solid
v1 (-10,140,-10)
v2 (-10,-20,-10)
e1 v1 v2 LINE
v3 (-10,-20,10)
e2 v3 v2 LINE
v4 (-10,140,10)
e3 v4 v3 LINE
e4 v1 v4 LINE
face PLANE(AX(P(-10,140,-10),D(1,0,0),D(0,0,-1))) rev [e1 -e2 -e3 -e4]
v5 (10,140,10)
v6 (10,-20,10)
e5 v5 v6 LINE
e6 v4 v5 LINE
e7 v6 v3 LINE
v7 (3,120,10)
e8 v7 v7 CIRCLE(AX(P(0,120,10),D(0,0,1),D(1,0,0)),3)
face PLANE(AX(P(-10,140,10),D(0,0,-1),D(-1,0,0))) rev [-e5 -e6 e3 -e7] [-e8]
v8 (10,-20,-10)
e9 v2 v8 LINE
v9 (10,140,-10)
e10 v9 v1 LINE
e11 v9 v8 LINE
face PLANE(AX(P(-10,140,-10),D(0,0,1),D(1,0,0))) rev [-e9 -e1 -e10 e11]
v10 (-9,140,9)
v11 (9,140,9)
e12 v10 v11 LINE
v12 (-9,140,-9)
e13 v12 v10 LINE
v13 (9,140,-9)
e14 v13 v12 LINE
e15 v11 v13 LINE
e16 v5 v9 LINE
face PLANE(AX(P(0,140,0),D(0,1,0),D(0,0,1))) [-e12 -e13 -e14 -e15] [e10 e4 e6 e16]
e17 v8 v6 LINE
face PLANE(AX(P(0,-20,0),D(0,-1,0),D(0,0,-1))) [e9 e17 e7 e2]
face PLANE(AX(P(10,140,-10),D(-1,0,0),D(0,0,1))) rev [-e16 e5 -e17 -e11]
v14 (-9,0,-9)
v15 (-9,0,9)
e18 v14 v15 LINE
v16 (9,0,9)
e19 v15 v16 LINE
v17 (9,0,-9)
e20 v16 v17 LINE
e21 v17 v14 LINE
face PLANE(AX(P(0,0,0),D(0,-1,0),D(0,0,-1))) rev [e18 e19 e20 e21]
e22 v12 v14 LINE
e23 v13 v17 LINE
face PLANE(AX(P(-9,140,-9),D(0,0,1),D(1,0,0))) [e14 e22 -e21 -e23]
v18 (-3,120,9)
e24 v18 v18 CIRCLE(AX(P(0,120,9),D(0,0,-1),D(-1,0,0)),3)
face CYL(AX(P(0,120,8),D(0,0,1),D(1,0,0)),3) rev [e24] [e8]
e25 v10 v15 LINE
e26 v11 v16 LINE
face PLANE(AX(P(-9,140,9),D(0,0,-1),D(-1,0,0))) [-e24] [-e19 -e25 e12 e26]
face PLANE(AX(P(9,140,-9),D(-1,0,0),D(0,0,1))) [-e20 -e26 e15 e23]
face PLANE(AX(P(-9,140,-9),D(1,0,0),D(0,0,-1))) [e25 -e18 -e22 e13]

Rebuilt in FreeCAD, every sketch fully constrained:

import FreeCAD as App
import Part
import Sketcher
from FreeCAD import Vector


def add_polygon(sketch, points):
    """Adds a closed chain of lines whose ends are joined by coincident constraints."""
    first, n = sketch.GeometryCount, len(points)
    for a, b in zip(points, points[1:] + points[:1]):
        sketch.addGeometry(Part.LineSegment(App.Vector(*a, 0), App.Vector(*b, 0)), False)
    for i in range(n):
        sketch.addConstraint(Sketcher.Constraint("Coincident", first + i, 2, first + (i + 1) % n, 1))

doc = App.newDocument("Part")
body = doc.addObject("PartDesign::Body", "Body")

# Sketch on XZ plane
sketch1 = body.newObject("Sketcher::SketchObject", "Sketch")
sketch1.AttachmentSupport = (doc.getObject("XZ_Plane"), [""])
sketch1.MapMode = "FlatFace"
add_polygon(sketch1, [(-10, -10), (-10, 10), (10, 10), (10, -10)])  # lines 0-3
add_polygon(sketch1, [(9, 9), (-9, 9), (-9, -9), (9, -9)])  # lines 4-7
sketch1.addConstraint([
    Sketcher.Constraint("Vertical", 0),
    Sketcher.Constraint("Horizontal", 1),
    Sketcher.Constraint("Vertical", 2),
    Sketcher.Constraint("Horizontal", 3),
    Sketcher.Constraint("Horizontal", 4),
    Sketcher.Constraint("Vertical", 5),
    Sketcher.Constraint("Horizontal", 6),
    Sketcher.Constraint("Vertical", 7),
    Sketcher.Constraint("Symmetric", 0, 2, 2, 2, -1, 1),
    Sketcher.Constraint("Symmetric", 4, 2, 6, 2, -1, 1),
    Sketcher.Constraint("Equal", 3, 0),
    Sketcher.Constraint("Equal", 6, 5),
    Sketcher.Constraint("DistanceX", 1, 1, 1, 2, 20.0),
    Sketcher.Constraint("DistanceX", 4, 2, 4, 1, 18.0),
])
pad1 = body.newObject("PartDesign::Pad", "Pad")
pad1.Profile = sketch1
pad1.Length = 140
pad1.Reversed = True

# Sketch on XZ plane
sketch2 = body.newObject("Sketcher::SketchObject", "Sketch001")
sketch2.AttachmentSupport = (doc.getObject("XZ_Plane"), [""])
sketch2.MapMode = "FlatFace"
add_polygon(sketch2, [(-10, 10), (-10, -10), (10, -10), (10, 10)])  # lines 0-3
sketch2.addConstraint([
    Sketcher.Constraint("Vertical", 0),
    Sketcher.Constraint("Horizontal", 1),
    Sketcher.Constraint("Vertical", 2),
    Sketcher.Constraint("Horizontal", 3),
    Sketcher.Constraint("Symmetric", 0, 2, 2, 2, -1, 1),
    Sketcher.Constraint("Equal", 3, 0),
    Sketcher.Constraint("DistanceX", 1, 1, 1, 2, 20.0),
])
pad2 = body.newObject("PartDesign::Pad", "Pad001")
pad2.Profile = sketch2
pad2.Length = 20

# Sketch on XY plane
sketch3 = body.newObject("Sketcher::SketchObject", "Sketch002")
sketch3.AttachmentSupport = (doc.getObject("XY_Plane"), [""])
sketch3.MapMode = "FlatFace"
sketch3.AttachmentOffset = App.Placement(Vector(0, 0, 10), App.Rotation())
sketch3.addGeometry(Part.Circle(Vector(0, 120, 0), Vector(0, 0, 1), 3), False)
sketch3.addConstraint([
    Sketcher.Constraint("PointOnObject", 0, 3, -2),
    Sketcher.Constraint("Diameter", 0, 6.0),
    Sketcher.Constraint("DistanceY", -1, 1, 0, 3, 120.0),
])
pocket1 = body.newObject("PartDesign::Pocket", "Pocket")
pocket1.Profile = sketch3
pocket1.Length = 2

doc.recompute()
